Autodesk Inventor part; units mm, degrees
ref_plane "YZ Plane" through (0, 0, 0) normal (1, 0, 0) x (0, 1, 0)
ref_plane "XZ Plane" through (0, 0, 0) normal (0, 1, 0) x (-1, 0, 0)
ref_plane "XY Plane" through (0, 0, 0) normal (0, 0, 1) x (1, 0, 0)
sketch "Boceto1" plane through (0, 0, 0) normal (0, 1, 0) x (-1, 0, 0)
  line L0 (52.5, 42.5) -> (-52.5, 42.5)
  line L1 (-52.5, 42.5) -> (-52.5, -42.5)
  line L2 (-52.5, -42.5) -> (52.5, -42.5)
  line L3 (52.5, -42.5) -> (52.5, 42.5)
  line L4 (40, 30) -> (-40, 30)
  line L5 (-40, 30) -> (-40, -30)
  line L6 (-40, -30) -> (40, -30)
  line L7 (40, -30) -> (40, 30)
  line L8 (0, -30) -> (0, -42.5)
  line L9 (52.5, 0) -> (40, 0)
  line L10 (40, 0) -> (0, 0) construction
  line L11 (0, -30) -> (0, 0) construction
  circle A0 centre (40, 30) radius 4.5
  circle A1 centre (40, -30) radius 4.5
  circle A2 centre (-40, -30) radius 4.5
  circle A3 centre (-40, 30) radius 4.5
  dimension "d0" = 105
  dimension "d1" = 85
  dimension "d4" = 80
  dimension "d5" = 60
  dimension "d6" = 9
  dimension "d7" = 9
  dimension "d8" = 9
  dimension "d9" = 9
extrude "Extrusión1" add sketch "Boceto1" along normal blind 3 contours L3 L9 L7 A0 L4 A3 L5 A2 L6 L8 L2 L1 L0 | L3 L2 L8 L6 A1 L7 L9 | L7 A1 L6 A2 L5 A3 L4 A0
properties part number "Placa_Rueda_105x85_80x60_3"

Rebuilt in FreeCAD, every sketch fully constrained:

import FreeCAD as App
import Part
import Sketcher


def add_polygon(sketch, points):
    """Adds a closed chain of lines whose ends are joined by coincident constraints."""
    first, n = sketch.GeometryCount, len(points)
    for a, b in zip(points, points[1:] + points[:1]):
        sketch.addGeometry(Part.LineSegment(App.Vector(*a, 0), App.Vector(*b, 0)), False)
    for i in range(n):
        sketch.addConstraint(Sketcher.Constraint("Coincident", first + i, 2, first + (i + 1) % n, 1))

doc = App.newDocument("Part")
body = doc.addObject("PartDesign::Body", "Body")

sketch1 = body.newObject("Sketcher::SketchObject", "Sketch")
sketch1.AttachmentSupport = (doc.getObject("XZ_Plane"), [""])
sketch1.MapMode = "FlatFace"
add_polygon(sketch1, [(-52.5, 42.5), (52.5, 42.5), (52.5, -42.5), (-52.5, -42.5)])
sketch1.addGeometry(Part.Circle(App.Vector(-40, 30, 0), App.Vector(0, 0, 1), 4.5), False)
sketch1.addGeometry(Part.Circle(App.Vector(40, 30, 0), App.Vector(0, 0, 1), 4.5), False)
sketch1.addGeometry(Part.Circle(App.Vector(40, -30, 0), App.Vector(0, 0, 1), 4.5), False)
sketch1.addGeometry(Part.Circle(App.Vector(-40, -30, 0), App.Vector(0, 0, 1), 4.5), False)
sketch1.addConstraint([
    Sketcher.Constraint("Horizontal", 0),
    Sketcher.Constraint("Vertical", 1),
    Sketcher.Constraint("Horizontal", 2),
    Sketcher.Constraint("Vertical", 3),
    Sketcher.Constraint("Equal", 4, 5),
    Sketcher.Constraint("Equal", 5, 6),
    Sketcher.Constraint("Equal", 6, 7),
    Sketcher.Constraint("Symmetric", 4, 3, 6, 3, -1, 1),
    Sketcher.Constraint("Symmetric", 5, 3, 7, 3, -1, 1),
    Sketcher.Constraint("Symmetric", 0, 2, 2, 2, -1, 1),
    Sketcher.Constraint("Symmetric", 4, 3, 5, 3, -2),
    Sketcher.Constraint("Diameter", 4, 9.0),
    Sketcher.Constraint("DistanceX", 0, 1, 0, 2, 105.0),
    Sketcher.Constraint("DistanceY", 1, 2, 1, 1, 85.0),
    Sketcher.Constraint("DistanceX", 4, 3, 5, 3, 80.0),
    Sketcher.Constraint("DistanceY", 6, 3, 5, 3, 60.0),
])
pad1 = body.newObject("PartDesign::Pad", "Pad")
pad1.Profile = sketch1
pad1.Length = 3
pad1.Reversed = True

doc.recompute()
